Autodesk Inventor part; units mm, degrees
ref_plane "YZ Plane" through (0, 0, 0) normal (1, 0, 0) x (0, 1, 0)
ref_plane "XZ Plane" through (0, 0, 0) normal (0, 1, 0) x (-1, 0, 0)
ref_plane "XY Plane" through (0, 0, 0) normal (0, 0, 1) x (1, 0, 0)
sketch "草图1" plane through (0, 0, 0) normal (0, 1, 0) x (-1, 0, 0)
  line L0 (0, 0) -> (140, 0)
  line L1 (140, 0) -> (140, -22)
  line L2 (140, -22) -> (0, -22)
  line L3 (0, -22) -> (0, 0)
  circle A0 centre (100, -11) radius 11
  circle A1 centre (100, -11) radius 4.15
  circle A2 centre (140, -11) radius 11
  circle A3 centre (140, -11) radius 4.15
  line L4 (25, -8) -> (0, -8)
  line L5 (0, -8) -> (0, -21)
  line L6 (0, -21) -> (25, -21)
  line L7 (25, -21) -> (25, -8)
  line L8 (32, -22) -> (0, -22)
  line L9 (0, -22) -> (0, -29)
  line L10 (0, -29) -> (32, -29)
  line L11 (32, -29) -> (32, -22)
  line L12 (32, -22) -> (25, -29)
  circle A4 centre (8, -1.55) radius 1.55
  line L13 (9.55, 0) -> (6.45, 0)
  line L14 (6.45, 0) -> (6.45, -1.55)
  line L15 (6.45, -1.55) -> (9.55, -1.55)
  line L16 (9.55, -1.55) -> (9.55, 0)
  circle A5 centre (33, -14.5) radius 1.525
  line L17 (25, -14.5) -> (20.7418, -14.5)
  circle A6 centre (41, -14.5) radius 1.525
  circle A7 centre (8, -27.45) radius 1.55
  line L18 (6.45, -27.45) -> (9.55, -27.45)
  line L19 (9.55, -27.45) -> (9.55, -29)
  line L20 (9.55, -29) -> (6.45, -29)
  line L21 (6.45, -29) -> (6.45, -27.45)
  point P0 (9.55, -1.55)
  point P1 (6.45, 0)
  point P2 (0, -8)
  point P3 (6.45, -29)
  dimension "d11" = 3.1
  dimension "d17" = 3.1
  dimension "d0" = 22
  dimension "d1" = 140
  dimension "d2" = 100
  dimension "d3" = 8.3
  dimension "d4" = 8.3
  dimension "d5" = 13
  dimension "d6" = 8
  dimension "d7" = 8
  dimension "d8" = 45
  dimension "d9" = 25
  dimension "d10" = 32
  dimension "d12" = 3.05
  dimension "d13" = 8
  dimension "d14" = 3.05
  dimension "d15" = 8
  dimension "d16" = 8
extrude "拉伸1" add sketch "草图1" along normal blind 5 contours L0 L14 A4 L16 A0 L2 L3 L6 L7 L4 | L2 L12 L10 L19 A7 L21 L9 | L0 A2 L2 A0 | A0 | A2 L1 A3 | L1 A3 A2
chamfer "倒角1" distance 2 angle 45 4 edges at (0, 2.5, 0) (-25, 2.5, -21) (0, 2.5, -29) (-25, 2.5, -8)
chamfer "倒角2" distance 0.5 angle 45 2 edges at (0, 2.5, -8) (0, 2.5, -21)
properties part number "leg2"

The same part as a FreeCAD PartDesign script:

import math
import FreeCAD as App
import Part
import Sketcher

V = App.Vector


def edges_at(feature, points):
    """Names of the edges that pass closest to the given points."""
    edges = feature.Shape.Edges
    near = lambda p: min(range(len(edges)), key=lambda i: edges[i].distToShape(Part.Vertex(*p))[0])
    return sorted({f"Edge{near(p) + 1}" for p in points})

doc = App.newDocument("Part")
body = doc.addObject("PartDesign::Body", "Body")

# Sketch on XZ plane
sketch1 = doc.addObject("Sketcher::SketchObject", "Sketch")
body.addObject(sketch1)
sketch1.AttachmentSupport = (doc.XZ_Plane, [""])
sketch1.MapMode = "FlatFace"
sketch1.addGeometry(Part.LineSegment(V(-6.5, 0, 0), V(0, 0, 0)), False)
sketch1.addGeometry(Part.LineSegment(V(0, 0, 0), V(0, -8, 0)), False)
sketch1.addGeometry(Part.LineSegment(V(0, -8, 0), V(-25, -8, 0)), False)
sketch1.addGeometry(Part.LineSegment(V(-25, -8, 0), V(-25, -21, 0)), False)
sketch1.addGeometry(Part.LineSegment(V(-25, -21, 0), V(0, -21, 0)), False)
sketch1.addGeometry(Part.LineSegment(V(0, -21, 0), V(0, -29, 0)), False)
sketch1.addGeometry(Part.LineSegment(V(0, -29, 0), V(-6.5, -29, 0)), False)
sketch1.addGeometry(Part.LineSegment(V(-6.5, -29, 0), V(-6.5, -27.4, 0)), False)
sketch1.addGeometry(Part.ArcOfCircle(Part.Circle(V(-8, -27.4, 0), V(0, 0, 1), 1.6), math.radians(0), math.radians(180)), False)
sketch1.addGeometry(Part.LineSegment(V(-9.6, -27.4, 0), V(-9.6, -29, 0)), False)
sketch1.addGeometry(Part.LineSegment(V(-9.6, -29, 0), V(-25, -29, 0)), False)
sketch1.addGeometry(Part.LineSegment(V(-25, -29, 0), V(-32, -22, 0)), False)
sketch1.addGeometry(Part.LineSegment(V(-32, -22, 0), V(-140, -22, 0)), False)
sketch1.addGeometry(Part.ArcOfCircle(Part.Circle(V(-140, -11, 0), V(0, 0, 1), 11), math.radians(90), math.radians(270)), False)
sketch1.addGeometry(Part.LineSegment(V(-140, 0, 0), V(-9.6, 0, 0)), False)
sketch1.addGeometry(Part.LineSegment(V(-9.6, 0, 0), V(-9.6, -1.6, 0)), False)
sketch1.addGeometry(Part.ArcOfCircle(Part.Circle(V(-8, -1.6, 0), V(0, 0, 1), 1.6), math.radians(180), math.radians(360)), False)
sketch1.addGeometry(Part.LineSegment(V(-6.5, -1.6, 0), V(-6.5, 0, 0)), False)
sketch1.addGeometry(Part.Circle(V(-33, -14.5, 0), V(0, 0, 1), 1.5), False)
sketch1.addGeometry(Part.Circle(V(-41, -14.5, 0), V(0, 0, 1), 1.5), False)
sketch1.addGeometry(Part.Circle(V(-100, -11, 0), V(0, 0, 1), 4.2), False)
sketch1.addGeometry(Part.Circle(V(-140, -11, 0), V(0, 0, 1), 4.2), False)
sketch1.addConstraint(Sketcher.Constraint("Coincident", 0, 2, 1, 1))
sketch1.addConstraint(Sketcher.Constraint("Coincident", 1, 2, 2, 1))
sketch1.addConstraint(Sketcher.Constraint("Coincident", 2, 2, 3, 1))
sketch1.addConstraint(Sketcher.Constraint("Coincident", 3, 2, 4, 1))
sketch1.addConstraint(Sketcher.Constraint("Coincident", 4, 2, 5, 1))
sketch1.addConstraint(Sketcher.Constraint("Coincident", 5, 2, 6, 1))
sketch1.addConstraint(Sketcher.Constraint("Coincident", 6, 2, 7, 1))
sketch1.addConstraint(Sketcher.Constraint("Tangent", 7, 2, 8, 1))
sketch1.addConstraint(Sketcher.Constraint("Tangent", 8, 2, 9, 1))
sketch1.addConstraint(Sketcher.Constraint("Coincident", 9, 2, 10, 1))
sketch1.addConstraint(Sketcher.Constraint("Coincident", 10, 2, 11, 1))
sketch1.addConstraint(Sketcher.Constraint("Coincident", 11, 2, 12, 1))
sketch1.addConstraint(Sketcher.Constraint("Tangent", 12, 2, 13, 2))
sketch1.addConstraint(Sketcher.Constraint("Tangent", 13, 1, 14, 1))
sketch1.addConstraint(Sketcher.Constraint("Coincident", 14, 2, 15, 1))
sketch1.addConstraint(Sketcher.Constraint("Tangent", 15, 2, 16, 1))
sketch1.addConstraint(Sketcher.Constraint("Tangent", 16, 2, 17, 1))
sketch1.addConstraint(Sketcher.Constraint("Coincident", 17, 2, 0, 1))
sketch1.addConstraint(Sketcher.Constraint("Horizontal", 0))
sketch1.addConstraint(Sketcher.Constraint("Vertical", 1))
sketch1.addConstraint(Sketcher.Constraint("Horizontal", 2))
sketch1.addConstraint(Sketcher.Constraint("Vertical", 3))
sketch1.addConstraint(Sketcher.Constraint("Horizontal", 4))
sketch1.addConstraint(Sketcher.Constraint("Vertical", 5))
sketch1.addConstraint(Sketcher.Constraint("Horizontal", 6))
sketch1.addConstraint(Sketcher.Constraint("Vertical", 7))
sketch1.addConstraint(Sketcher.Constraint("Vertical", 9))
sketch1.addConstraint(Sketcher.Constraint("Horizontal", 10))
sketch1.addConstraint(Sketcher.Constraint("Horizontal", 12))
sketch1.addConstraint(Sketcher.Constraint("Horizontal", 14))
sketch1.addConstraint(Sketcher.Constraint("Vertical", 15))
sketch1.addConstraint(Sketcher.Constraint("Vertical", 17))
sketch1.addConstraint(Sketcher.Constraint("Coincident", 0, 2, -1, 1))
sketch1.addConstraint(Sketcher.Constraint("Coincident", 21, 3, 13, 3))
sketch1.addConstraint(Sketcher.Constraint("Equal", 8, 16))
sketch1.addConstraint(Sketcher.Constraint("Equal", 18, 19))
sketch1.addConstraint(Sketcher.Constraint("Equal", 20, 21))
sketch1.addConstraint(Sketcher.Constraint("PointOnObject", 4, 2, -2))
sketch1.addConstraint(Sketcher.Constraint("PointOnObject", 13, 1, -1))
sketch1.addConstraint(Sketcher.Constraint("Horizontal", 18, 3, 19, 3))
sketch1.addConstraint(Sketcher.Constraint("Horizontal", 13, 3, 20, 3))
sketch1.addConstraint(Sketcher.Constraint("Horizontal", 6, 2, 9, 2))
sketch1.addConstraint(Sketcher.Constraint("Vertical", 8, 3, 16, 3))
sketch1.addConstraint(Sketcher.Constraint("Vertical", 3, 2, 10, 2))
sketch1.addConstraint(Sketcher.Constraint("Equal", 1, 5))
sketch1.addConstraint(Sketcher.Constraint("Equal", 9, 15))
sketch1.addConstraint(Sketcher.Constraint("Radius", 13, 11.0))
sketch1.addConstraint(Sketcher.Constraint("Diameter", 20, 8.3))
sketch1.addConstraint(Sketcher.Constraint("Diameter", 18, 3.05))
sketch1.addConstraint(Sketcher.Constraint("DistanceX", 2, 2, 2, 1, 25.0))
sketch1.addConstraint(Sketcher.Constraint("DistanceY", 1, 2, 1, 1, 8.0))
sketch1.addConstraint(Sketcher.Constraint("DistanceY", 3, 2, 3, 1, 13.0))
sketch1.addConstraint(Sketcher.Constraint("Radius", 8, 1.55))
sketch1.addConstraint(Sketcher.Constraint("DistanceX", 8, 3, -1, 1, 8.0))
sketch1.addConstraint(Sketcher.Constraint("DistanceX", 13, 3, -1, 1, 140.0))
sketch1.addConstraint(Sketcher.Constraint("DistanceX", 20, 3, -1, 1, 100.0))
sketch1.addConstraint(Sketcher.Constraint("DistanceX", 11, 2, -1, 1, 32.0))
sketch1.addConstraint(Sketcher.Constraint("DistanceX", 18, 3, 8, 3, 25.0))
sketch1.addConstraint(Sketcher.Constraint("DistanceX", 19, 3, 18, 3, 8.0))
sketch1.addConstraint(Sketcher.Constraint("DistanceY", 7, 1, 7, 2, 1.55))
sketch1.addConstraint(Sketcher.Constraint("DistanceY", 18, 3, -1, 1, 14.5))
pad1 = doc.addObject("PartDesign::Pad", "Pad")
body.addObject(pad1)
pad1.Profile = sketch1
pad1.Length = 5
pad1.Reversed = True
doc.recompute()

chamfer = doc.addObject("PartDesign::Chamfer", "Chamfer")
body.addObject(chamfer)
chamfer.Base = (pad1, edges_at(pad1, [
    (0, 2.5, 0),
    (-25, 2.5, -21),
    (0, 2.5, -29),
    (-25, 2.5, -8),
]))
chamfer.Size = 2
doc.recompute()

chamfer2 = doc.addObject("PartDesign::Chamfer", "Chamfer001")
body.addObject(chamfer2)
chamfer2.Base = (chamfer, edges_at(chamfer, [(0, 2.5, -8), (0, 2.5, -21)]))
chamfer2.Size = 0.5

doc.recompute()
